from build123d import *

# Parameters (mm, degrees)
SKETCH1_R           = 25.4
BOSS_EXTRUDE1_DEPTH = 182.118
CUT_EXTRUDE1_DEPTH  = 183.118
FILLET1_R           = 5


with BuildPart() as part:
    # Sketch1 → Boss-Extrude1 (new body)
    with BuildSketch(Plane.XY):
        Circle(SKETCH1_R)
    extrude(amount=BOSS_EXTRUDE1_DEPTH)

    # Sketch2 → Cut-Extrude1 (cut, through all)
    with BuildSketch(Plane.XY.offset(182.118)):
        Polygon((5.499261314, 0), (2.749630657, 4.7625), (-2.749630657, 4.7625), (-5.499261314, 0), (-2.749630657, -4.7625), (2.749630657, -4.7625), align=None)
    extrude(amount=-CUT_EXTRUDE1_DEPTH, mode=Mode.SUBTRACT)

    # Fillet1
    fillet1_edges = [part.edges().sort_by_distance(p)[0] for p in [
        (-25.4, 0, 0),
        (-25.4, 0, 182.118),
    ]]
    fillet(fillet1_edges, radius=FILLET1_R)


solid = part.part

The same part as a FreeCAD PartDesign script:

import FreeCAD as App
import Part
import Sketcher
from FreeCAD import Vector
Q = App.Units.Quantity


def edges_at(feature, points):
    """Names of the edges that pass closest to the given points."""
    edges = feature.Shape.Edges
    near = lambda p: min(range(len(edges)), key=lambda i: edges[i].distToShape(Part.Vertex(*p))[0])
    return sorted({f"Edge{near(p) + 1}" for p in points})


def add_polygon(sketch, points):
    """Adds a closed chain of lines whose ends are joined by coincident constraints."""
    first, n = sketch.GeometryCount, len(points)
    for a, b in zip(points, points[1:] + points[:1]):
        sketch.addGeometry(Part.LineSegment(App.Vector(*a, 0), App.Vector(*b, 0)), False)
    for i in range(n):
        sketch.addConstraint(Sketcher.Constraint("Coincident", first + i, 2, first + (i + 1) % n, 1))

doc = App.newDocument("Part")
params = doc.addObject("Spreadsheet::Sheet", "Params")
for row, (alias, value) in enumerate([
    ("sketch1_diameter", "2 in"),
    ("pad1_length", "7.17 in"),
    ("fillet_radius", "5 mm"),
], start=1):
    params.set(f"A{row}", alias)
    params.set(f"B{row}", "=" + value)
    params.setAlias(f"B{row}", alias)

body = doc.addObject("PartDesign::Body", "Body")

# Sketch on XY plane
sketch1 = body.newObject("Sketcher::SketchObject", "Sketch")
sketch1.AttachmentSupport = (doc.getObject("XY_Plane"), [""])
sketch1.MapMode = "FlatFace"
sketch1.addGeometry(Part.Circle(Vector(0, 0, 0), Vector(0, 0, 1), 25.4), False)
sketch1.addConstraint([
    Sketcher.Constraint("Coincident", 0, 3, -1, 1),
    Sketcher.Constraint("Diameter", 0, Q("2 in")),
])
sketch1.setExpression("Constraints[1]", "Params.sketch1_diameter")
pad1 = body.newObject("PartDesign::Pad", "Pad")
pad1.Profile = sketch1
pad1.setExpression("Length", "Params.pad1_length")

# Sketch on XY plane
sketch2 = body.newObject("Sketcher::SketchObject", "Sketch001")
sketch2.AttachmentSupport = (doc.getObject("XY_Plane"), [""])
sketch2.MapMode = "FlatFace"
sketch2.AttachmentOffset = App.Placement(Vector(0, 0, 7.17 * 25.4), App.Rotation())
add_polygon(sketch2, [(5.499261, 0), (2.749631, 4.7625), (-2.749631, 4.7625), (-5.499261, 0), (-2.749631, -4.7625), (2.749631, -4.7625)])  # lines 0-5
sketch2.addConstraint([
    Sketcher.Constraint("Horizontal", 1),
    Sketcher.Constraint("Horizontal", 4),
    Sketcher.Constraint("Symmetric", 0, 2, 3, 2, -1, 1),
    Sketcher.Constraint("Symmetric", 2, 2, 5, 2, -1, 1),
    Sketcher.Constraint("PointOnObject", 2, 2, -1),
    Sketcher.Constraint("Parallel", 2, 5),
    Sketcher.Constraint("Vertical", 1, 2, 3, 2),
    Sketcher.Constraint("Angle", 0, Q("120 deg")),
    Sketcher.Constraint("DistanceY", -1, 1, 0, 2, Q("0.1875 in")),
    Sketcher.Constraint("DistanceX", 1, 2, 1, 1, 5.499261),
])
pocket1 = body.newObject("PartDesign::Pocket", "Pocket")
pocket1.Profile = sketch2
pocket1.Type = "ThroughAll"
doc.recompute()

fillet = body.newObject("PartDesign::Fillet", "Fillet")
fillet.Base = (pocket1, edges_at(pocket1, [(-25.4, 0, 0), (-25.4, 0, 182.118)]))
fillet.setExpression("Radius", "Params.fillet_radius")

doc.recompute()
